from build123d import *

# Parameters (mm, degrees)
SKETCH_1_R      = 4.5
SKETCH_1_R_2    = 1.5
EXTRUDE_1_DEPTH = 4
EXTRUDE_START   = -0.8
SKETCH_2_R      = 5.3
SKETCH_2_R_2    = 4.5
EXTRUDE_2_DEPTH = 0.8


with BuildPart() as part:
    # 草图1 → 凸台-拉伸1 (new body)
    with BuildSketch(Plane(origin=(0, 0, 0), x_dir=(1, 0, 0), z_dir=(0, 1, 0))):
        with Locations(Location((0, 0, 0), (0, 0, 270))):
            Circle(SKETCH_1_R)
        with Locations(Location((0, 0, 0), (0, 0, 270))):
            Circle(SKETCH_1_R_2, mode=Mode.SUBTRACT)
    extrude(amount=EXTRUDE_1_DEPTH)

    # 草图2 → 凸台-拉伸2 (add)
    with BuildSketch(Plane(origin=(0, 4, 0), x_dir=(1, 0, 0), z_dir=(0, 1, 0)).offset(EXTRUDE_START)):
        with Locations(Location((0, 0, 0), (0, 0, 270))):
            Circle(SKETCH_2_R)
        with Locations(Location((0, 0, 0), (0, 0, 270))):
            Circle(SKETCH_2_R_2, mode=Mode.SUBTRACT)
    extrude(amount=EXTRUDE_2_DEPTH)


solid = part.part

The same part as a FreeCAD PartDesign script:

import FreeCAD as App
import Part
import Sketcher
Q = App.Units.Quantity

doc = App.newDocument("Part")
body = doc.addObject("PartDesign::Body", "Body")

sketch1 = body.newObject("Sketcher::SketchObject", "Sketch")
sketch1.AttachmentSupport = (doc.getObject("XZ_Plane"), [""])
sketch1.MapMode = "FlatFace"
sketch1.addGeometry([
    Part.Circle(App.Vector(0, 0, 0), App.Vector(0, 0, 1), 4.5),
    Part.Circle(App.Vector(0, 0, 0), App.Vector(0, 0, 1), 1.5),
], False)
sketch1.addConstraint([
    Sketcher.Constraint("Coincident", 0, 3, -1, 1),
    Sketcher.Constraint("Coincident", 1, 3, -1, 1),
    Sketcher.Constraint("Diameter", 0, Q("9 mm")),
    Sketcher.Constraint("Diameter", 1, Q("3 mm")),
])
pad1 = body.newObject("PartDesign::Pad", "Pad")
pad1.Profile = sketch1
pad1.Length = 4
pad1.Reversed = True

sketch2 = body.newObject("Sketcher::SketchObject", "Sketch001")
sketch2.AttachmentSupport = (doc.getObject("XZ_Plane"), [""])
sketch2.MapMode = "FlatFace"
sketch2.AttachmentOffset = App.Placement(App.Vector(0, 0, -3.2), App.Rotation())
sketch2.addGeometry([
    Part.Circle(App.Vector(0, 0, 0), App.Vector(0, 0, 1), 5.3),
    Part.Circle(App.Vector(0, 0, 0), App.Vector(0, 0, 1), 4.5),
], False)
sketch2.addConstraint([
    Sketcher.Constraint("Coincident", 0, 3, -1, 1),
    Sketcher.Constraint("Coincident", 1, 3, -1, 1),
    Sketcher.Constraint("Diameter", 1, Q("9 mm")),
    Sketcher.Constraint("Diameter", 0, Q("10.6 mm")),
])
pad2 = body.newObject("PartDesign::Pad", "Pad001")
pad2.Profile = sketch2
pad2.Length = 0.8
pad2.Reversed = True

doc.recompute()
